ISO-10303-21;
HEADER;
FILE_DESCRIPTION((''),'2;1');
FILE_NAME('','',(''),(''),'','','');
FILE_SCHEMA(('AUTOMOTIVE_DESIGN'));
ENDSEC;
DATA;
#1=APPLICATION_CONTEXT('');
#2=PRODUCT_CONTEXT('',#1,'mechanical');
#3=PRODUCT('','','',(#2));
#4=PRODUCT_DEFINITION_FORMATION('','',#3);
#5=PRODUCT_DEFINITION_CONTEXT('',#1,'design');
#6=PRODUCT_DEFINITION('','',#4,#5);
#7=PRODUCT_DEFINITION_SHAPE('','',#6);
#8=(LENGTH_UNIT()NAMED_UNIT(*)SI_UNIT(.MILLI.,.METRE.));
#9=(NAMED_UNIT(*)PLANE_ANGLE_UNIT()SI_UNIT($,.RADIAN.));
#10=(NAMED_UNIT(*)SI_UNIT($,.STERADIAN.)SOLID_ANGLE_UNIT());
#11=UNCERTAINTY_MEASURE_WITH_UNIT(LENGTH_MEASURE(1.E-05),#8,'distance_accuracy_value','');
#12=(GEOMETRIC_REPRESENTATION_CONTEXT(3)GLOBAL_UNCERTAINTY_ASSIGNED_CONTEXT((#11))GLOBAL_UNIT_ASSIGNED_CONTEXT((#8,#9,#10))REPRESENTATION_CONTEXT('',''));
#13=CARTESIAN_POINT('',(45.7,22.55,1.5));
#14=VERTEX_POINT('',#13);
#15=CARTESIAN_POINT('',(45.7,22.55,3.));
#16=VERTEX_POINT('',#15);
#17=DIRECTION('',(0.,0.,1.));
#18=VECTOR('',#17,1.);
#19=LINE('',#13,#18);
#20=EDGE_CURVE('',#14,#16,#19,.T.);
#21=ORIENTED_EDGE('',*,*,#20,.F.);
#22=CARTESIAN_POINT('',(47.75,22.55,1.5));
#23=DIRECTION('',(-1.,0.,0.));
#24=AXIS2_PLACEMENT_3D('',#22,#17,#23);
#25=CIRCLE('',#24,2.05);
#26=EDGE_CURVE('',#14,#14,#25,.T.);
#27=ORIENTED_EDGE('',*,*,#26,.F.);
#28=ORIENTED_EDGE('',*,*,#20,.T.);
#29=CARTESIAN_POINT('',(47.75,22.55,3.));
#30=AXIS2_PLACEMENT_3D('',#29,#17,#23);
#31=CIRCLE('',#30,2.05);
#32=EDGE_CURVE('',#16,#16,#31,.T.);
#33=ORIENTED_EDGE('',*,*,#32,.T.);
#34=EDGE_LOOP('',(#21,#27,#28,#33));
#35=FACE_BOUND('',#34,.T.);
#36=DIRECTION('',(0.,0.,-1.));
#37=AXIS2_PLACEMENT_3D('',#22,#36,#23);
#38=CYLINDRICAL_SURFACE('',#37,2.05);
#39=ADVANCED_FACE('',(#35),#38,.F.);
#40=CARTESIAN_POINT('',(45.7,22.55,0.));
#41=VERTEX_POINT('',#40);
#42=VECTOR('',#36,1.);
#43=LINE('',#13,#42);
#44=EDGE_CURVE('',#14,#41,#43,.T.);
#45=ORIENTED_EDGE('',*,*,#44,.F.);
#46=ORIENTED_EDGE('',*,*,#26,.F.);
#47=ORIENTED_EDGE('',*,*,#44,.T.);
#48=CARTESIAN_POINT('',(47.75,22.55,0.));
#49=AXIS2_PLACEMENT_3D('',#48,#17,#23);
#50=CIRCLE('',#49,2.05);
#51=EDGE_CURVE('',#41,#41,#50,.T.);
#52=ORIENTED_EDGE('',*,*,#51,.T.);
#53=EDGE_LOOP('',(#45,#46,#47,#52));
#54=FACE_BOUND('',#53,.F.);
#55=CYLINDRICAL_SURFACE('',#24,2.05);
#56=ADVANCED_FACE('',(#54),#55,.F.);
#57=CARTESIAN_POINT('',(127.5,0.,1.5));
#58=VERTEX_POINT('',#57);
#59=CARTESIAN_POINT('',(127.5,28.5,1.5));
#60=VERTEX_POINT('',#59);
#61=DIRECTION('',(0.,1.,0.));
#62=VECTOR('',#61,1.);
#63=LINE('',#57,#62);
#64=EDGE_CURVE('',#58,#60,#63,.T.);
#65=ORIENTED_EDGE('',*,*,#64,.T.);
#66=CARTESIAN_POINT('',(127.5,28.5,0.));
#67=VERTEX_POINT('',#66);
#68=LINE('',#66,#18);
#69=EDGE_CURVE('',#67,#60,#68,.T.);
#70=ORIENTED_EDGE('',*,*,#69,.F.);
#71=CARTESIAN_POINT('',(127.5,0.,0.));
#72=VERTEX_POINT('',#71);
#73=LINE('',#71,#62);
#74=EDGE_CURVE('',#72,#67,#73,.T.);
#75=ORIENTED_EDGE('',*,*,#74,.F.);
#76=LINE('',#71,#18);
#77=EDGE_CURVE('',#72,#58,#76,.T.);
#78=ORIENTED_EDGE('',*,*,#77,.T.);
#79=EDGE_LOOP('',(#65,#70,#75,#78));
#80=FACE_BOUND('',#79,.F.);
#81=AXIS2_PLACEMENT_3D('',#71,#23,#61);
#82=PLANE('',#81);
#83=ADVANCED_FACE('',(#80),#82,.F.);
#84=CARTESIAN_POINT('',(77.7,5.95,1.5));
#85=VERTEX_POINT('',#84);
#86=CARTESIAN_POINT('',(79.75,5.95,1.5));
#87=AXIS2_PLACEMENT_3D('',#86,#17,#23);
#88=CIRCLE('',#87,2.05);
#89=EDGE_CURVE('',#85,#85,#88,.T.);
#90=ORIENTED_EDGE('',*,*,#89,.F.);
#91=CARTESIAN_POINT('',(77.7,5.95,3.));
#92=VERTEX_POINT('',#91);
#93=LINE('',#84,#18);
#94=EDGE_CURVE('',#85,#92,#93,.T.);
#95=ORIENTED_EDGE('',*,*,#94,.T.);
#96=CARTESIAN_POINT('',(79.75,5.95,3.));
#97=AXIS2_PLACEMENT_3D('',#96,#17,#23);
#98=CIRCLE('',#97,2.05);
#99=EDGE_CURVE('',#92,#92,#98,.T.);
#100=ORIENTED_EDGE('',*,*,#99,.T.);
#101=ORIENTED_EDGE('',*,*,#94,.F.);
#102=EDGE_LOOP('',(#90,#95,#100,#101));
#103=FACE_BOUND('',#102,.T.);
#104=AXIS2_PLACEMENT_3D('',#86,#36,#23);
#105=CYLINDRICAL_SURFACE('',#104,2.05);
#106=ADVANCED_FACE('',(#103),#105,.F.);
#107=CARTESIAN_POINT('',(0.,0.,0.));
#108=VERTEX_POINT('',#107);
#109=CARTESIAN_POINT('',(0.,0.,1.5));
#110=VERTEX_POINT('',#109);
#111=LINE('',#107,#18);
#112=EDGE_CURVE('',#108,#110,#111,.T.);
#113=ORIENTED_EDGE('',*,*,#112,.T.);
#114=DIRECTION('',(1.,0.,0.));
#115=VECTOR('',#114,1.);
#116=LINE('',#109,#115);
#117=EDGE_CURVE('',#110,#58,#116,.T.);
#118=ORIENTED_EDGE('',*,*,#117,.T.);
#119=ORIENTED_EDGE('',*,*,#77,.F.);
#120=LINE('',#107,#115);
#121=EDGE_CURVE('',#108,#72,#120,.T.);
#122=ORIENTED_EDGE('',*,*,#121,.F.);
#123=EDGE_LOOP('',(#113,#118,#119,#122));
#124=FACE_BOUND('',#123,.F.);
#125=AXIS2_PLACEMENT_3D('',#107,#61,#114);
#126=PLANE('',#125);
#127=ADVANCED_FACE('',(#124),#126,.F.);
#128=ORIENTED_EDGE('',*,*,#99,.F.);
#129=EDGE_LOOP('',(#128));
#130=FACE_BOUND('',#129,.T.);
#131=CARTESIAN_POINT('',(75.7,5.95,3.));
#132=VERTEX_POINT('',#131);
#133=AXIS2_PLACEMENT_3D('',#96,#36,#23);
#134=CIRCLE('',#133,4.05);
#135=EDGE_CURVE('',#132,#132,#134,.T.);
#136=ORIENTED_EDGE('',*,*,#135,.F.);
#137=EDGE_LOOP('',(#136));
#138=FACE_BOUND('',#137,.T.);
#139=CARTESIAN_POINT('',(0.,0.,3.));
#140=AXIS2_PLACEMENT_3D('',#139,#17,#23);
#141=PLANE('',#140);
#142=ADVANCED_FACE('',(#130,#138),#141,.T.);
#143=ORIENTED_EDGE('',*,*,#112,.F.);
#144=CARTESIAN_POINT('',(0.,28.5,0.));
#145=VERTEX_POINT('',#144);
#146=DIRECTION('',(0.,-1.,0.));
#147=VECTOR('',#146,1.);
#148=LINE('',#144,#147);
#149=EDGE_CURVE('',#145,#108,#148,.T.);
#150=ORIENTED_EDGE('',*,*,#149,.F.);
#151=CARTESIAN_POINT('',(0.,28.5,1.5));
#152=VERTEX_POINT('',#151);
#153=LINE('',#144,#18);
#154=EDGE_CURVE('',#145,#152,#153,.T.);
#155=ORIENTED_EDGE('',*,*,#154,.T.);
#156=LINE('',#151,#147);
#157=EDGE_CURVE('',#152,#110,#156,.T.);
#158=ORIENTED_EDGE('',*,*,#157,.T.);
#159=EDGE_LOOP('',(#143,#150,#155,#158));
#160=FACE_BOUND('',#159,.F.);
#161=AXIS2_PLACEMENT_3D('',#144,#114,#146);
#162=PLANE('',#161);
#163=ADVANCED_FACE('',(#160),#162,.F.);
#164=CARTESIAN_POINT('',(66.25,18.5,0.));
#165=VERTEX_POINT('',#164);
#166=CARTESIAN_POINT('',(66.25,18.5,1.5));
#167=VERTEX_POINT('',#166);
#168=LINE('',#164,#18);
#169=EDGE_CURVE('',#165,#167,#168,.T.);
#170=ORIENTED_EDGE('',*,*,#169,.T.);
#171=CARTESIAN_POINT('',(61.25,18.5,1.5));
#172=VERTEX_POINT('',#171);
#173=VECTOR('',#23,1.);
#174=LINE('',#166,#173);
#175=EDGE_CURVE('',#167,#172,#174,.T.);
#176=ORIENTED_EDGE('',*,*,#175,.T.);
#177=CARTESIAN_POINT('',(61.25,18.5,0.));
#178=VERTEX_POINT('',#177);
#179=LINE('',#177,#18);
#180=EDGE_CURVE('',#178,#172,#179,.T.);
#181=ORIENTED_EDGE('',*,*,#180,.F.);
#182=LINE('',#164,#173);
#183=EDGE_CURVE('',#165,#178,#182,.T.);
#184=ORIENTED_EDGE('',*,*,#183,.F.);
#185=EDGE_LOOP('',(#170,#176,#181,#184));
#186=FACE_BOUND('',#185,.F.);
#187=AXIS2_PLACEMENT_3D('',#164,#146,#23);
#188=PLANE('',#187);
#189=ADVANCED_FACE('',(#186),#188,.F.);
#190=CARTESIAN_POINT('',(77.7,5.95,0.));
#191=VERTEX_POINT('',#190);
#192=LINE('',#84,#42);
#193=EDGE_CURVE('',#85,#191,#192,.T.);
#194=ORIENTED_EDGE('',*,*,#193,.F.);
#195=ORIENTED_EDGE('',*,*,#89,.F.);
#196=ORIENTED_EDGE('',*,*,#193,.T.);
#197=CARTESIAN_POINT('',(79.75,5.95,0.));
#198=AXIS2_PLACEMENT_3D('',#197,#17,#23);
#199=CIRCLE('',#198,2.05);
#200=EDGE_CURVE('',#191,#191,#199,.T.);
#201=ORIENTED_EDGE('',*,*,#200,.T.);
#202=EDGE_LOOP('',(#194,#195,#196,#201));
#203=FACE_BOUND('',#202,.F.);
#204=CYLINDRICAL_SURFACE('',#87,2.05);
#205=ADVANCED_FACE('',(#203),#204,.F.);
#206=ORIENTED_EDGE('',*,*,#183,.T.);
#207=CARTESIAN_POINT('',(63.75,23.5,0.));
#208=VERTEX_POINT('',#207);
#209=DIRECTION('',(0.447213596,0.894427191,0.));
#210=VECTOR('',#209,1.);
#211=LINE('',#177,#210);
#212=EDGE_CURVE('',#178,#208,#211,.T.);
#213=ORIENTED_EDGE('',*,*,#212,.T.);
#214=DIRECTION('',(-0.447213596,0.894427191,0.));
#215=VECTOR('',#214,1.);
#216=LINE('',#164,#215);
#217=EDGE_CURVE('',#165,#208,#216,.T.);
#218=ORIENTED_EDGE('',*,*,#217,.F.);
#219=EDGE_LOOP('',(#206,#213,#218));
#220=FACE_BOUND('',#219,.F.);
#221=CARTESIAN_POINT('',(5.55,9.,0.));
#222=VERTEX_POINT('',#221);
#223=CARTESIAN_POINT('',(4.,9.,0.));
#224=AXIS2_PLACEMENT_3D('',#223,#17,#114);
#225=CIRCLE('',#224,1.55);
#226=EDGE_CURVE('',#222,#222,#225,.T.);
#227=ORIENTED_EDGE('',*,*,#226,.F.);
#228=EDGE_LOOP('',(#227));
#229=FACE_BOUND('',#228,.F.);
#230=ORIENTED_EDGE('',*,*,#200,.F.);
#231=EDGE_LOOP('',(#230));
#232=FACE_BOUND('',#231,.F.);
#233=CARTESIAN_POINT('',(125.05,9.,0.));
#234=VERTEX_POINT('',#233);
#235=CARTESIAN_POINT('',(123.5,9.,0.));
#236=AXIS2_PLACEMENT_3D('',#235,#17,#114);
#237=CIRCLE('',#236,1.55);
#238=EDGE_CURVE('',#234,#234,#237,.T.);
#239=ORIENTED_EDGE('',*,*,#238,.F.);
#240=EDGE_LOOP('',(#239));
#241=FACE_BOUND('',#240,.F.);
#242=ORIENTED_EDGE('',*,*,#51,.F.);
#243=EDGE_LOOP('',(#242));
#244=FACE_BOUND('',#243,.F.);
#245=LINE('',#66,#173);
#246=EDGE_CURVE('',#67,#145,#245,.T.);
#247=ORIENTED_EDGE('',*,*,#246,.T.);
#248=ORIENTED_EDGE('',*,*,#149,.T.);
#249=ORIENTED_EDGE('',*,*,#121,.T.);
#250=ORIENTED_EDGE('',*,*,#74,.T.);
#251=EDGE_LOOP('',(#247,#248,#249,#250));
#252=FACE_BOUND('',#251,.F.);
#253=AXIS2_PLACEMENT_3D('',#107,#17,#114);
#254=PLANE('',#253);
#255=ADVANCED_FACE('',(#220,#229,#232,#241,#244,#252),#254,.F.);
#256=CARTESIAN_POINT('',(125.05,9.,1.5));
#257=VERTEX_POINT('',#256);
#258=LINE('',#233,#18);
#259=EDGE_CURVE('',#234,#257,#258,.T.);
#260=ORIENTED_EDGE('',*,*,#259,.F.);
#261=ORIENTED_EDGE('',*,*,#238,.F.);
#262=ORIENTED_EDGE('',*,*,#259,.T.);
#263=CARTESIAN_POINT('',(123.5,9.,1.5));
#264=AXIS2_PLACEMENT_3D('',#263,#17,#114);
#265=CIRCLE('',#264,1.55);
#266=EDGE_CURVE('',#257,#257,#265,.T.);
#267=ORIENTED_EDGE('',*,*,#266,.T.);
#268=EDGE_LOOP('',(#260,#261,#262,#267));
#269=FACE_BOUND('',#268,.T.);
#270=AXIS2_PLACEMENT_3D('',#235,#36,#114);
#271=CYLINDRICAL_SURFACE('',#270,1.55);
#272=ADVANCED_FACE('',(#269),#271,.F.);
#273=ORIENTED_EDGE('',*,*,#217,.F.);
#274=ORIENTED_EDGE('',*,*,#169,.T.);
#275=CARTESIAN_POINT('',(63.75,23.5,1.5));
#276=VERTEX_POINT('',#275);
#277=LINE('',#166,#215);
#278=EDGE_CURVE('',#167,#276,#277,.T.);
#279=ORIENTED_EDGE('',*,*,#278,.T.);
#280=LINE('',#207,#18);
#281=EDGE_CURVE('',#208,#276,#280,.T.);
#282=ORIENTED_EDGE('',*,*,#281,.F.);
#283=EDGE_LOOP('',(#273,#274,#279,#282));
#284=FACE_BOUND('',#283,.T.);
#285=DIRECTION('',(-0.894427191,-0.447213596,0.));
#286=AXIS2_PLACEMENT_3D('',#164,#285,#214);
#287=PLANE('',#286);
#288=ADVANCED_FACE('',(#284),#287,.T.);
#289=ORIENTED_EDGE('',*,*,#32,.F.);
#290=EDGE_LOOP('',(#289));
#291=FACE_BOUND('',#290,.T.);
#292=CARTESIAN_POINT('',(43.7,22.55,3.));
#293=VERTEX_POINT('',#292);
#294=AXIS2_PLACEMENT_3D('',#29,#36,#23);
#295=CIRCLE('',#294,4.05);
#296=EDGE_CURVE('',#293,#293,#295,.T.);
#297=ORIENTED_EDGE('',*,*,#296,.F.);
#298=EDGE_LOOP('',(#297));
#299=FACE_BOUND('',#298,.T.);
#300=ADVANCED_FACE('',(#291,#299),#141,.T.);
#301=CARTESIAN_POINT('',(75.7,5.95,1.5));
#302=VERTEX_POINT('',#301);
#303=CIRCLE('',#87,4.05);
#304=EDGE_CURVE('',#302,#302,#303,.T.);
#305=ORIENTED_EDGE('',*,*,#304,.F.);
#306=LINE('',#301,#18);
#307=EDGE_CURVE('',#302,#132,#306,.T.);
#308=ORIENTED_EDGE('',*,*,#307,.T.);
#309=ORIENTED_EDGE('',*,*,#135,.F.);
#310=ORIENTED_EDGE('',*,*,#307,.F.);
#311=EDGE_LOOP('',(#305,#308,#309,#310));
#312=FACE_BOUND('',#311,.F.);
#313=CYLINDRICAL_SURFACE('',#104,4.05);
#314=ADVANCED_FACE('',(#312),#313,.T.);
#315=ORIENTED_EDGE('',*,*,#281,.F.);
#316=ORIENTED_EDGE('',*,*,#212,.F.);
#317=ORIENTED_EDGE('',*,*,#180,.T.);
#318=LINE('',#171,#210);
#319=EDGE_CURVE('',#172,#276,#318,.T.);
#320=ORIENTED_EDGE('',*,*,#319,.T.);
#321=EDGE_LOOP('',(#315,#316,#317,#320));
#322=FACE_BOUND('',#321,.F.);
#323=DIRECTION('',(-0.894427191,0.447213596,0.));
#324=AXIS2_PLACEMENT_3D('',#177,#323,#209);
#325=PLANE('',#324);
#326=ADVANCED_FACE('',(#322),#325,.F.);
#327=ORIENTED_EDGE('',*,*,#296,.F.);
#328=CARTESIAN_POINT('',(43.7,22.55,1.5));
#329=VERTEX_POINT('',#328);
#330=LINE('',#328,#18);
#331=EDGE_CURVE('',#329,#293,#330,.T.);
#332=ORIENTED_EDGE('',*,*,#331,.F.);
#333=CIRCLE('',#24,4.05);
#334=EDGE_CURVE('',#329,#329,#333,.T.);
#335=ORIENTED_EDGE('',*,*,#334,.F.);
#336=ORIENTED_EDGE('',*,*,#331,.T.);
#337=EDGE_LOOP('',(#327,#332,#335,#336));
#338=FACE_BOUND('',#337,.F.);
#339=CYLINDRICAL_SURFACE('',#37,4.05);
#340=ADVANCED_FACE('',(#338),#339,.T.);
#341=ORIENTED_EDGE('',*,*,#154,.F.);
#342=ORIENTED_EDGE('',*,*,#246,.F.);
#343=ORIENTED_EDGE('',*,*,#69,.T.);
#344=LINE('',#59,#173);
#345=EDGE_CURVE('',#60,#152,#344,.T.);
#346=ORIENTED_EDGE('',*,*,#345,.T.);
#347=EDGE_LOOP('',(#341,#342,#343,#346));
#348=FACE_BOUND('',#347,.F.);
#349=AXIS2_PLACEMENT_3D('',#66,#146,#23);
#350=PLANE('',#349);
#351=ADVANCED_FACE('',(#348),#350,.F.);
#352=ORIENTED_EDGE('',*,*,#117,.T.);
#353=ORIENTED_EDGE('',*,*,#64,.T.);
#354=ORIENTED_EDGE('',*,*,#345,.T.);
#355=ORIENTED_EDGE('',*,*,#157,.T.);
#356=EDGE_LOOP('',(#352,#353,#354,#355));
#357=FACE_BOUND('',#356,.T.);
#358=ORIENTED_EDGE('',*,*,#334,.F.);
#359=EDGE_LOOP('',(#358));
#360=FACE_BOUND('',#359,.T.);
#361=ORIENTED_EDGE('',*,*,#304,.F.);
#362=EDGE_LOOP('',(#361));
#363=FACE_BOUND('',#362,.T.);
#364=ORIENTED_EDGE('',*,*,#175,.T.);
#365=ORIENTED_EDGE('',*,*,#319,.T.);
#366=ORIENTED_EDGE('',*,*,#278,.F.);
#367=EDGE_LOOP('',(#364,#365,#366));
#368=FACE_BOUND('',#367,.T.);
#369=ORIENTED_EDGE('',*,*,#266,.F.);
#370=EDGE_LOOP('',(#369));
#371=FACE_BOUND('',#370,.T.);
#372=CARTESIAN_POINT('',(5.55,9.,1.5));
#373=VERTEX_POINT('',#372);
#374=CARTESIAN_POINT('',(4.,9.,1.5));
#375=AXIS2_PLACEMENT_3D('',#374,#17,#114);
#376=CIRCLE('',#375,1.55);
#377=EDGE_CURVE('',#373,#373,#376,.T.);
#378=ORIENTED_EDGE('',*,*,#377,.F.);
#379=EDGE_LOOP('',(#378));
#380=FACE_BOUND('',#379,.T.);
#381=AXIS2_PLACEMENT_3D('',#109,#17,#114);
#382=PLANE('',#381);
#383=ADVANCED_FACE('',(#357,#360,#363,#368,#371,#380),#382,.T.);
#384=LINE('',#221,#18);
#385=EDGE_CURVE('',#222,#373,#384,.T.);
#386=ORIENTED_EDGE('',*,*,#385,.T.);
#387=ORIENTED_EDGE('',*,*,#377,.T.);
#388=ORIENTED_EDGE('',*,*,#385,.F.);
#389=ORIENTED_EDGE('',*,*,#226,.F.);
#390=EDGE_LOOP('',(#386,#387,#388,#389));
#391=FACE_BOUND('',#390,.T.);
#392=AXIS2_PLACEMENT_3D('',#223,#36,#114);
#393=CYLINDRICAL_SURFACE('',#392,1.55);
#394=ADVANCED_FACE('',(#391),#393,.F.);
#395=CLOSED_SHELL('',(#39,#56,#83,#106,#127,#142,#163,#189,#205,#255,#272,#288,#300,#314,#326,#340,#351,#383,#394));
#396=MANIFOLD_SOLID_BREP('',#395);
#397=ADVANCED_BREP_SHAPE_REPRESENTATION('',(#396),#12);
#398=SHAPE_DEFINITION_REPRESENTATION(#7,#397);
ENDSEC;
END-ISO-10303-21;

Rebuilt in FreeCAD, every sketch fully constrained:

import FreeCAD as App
import Part
import Sketcher

V = App.Vector
Q = App.Units.Quantity


def add_polygon(sketch, points):
    """Adds a closed chain of lines whose ends are joined by coincident constraints."""
    first, n = sketch.GeometryCount, len(points)
    for a, b in zip(points, points[1:] + points[:1]):
        sketch.addGeometry(Part.LineSegment(App.Vector(*a, 0), App.Vector(*b, 0)), False)
    for i in range(n):
        sketch.addConstraint(Sketcher.Constraint("Coincident", first + i, 2, first + (i + 1) % n, 1))

doc = App.newDocument("Part")
body = doc.addObject("PartDesign::Body", "Body")

sketch1 = doc.addObject("Sketcher::SketchObject", "Sketch")
body.addObject(sketch1)
sketch1.AttachmentSupport = (doc.XY_Plane, [""])
sketch1.MapMode = "FlatFace"
add_polygon(sketch1, [(0, 28.5), (0, 0), (127.5, 0), (127.5, 28.5)])
sketch1.addGeometry(Part.Circle(V(4, 9, 0), V(0, 0, 1), 1.55), False)
sketch1.addGeometry(Part.Circle(V(123.5, 9, 0), V(0, 0, 1), 1.55), False)
add_polygon(sketch1, [(66.25, 18.5), (61.25, 18.5), (63.75, 23.5)])
sketch1.addConstraint([
    Sketcher.Constraint("Vertical", 0),
    Sketcher.Constraint("Horizontal", 1),
    Sketcher.Constraint("Vertical", 2),
    Sketcher.Constraint("Horizontal", 3),
    Sketcher.Constraint("Horizontal", 6),
    Sketcher.Constraint("Coincident", 0, 2, -1, 1),
    Sketcher.Constraint("Equal", 4, 5),
    Sketcher.Constraint("Horizontal", 4, 3, 5, 3),
    Sketcher.Constraint("Equal", 7, 8),
    Sketcher.Constraint("Diameter", 4, Q("3.1 mm")),
    Sketcher.Constraint("DistanceX", 6, 2, 6, 1, Q("5 mm")),
    Sketcher.Constraint("DistanceX", 1, 1, 1, 2, Q("127.5 mm")),
    Sketcher.Constraint("DistanceY", 0, 2, 0, 1, Q("28.5 mm")),
    Sketcher.Constraint("DistanceX", -1, 1, 4, 3, Q("4 mm")),
    Sketcher.Constraint("DistanceY", -1, 1, 4, 3, Q("9 mm")),
    Sketcher.Constraint("DistanceX", 5, 3, 1, 2, Q("4 mm")),
    Sketcher.Constraint("DistanceY", 6, 2, 7, 2, Q("5 mm")),
    Sketcher.Constraint("DistanceY", 7, 2, 2, 2, Q("5 mm")),
    Sketcher.Constraint("DistanceX", -1, 1, 6, 2, Q("61.25 mm")),
])
pad1 = doc.addObject("PartDesign::Pad", "Pad")
body.addObject(pad1)
pad1.Profile = sketch1
pad1.Length = 1.5

sketch2 = doc.addObject("Sketcher::SketchObject", "Sketch001")
body.addObject(sketch2)
sketch2.AttachmentSupport = (doc.XY_Plane, [""])
sketch2.MapMode = "FlatFace"
sketch2.AttachmentOffset = App.Placement(V(0, 0, 1.5), App.Rotation())
sketch2.addGeometry([
    Part.Circle(V(79.75, 5.95, 0), V(0, 0, 1), 4.05),
    Part.Circle(V(79.75, 5.95, 0), V(0, 0, 1), 2.05),
    Part.Circle(V(47.75, 22.55, 0), V(0, 0, 1), 4.05),
    Part.Circle(V(47.75, 22.55, 0), V(0, 0, 1), 2.05),
], False)
sketch2.addConstraint([
    Sketcher.Constraint("Coincident", 1, 3, 0, 3),
    Sketcher.Constraint("Coincident", 3, 3, 2, 3),
    Sketcher.Constraint("Equal", 0, 2),
    Sketcher.Constraint("Equal", 1, 3),
    Sketcher.Constraint("Diameter", 0, Q("8.1 mm")),
    Sketcher.Constraint("Diameter", 1, Q("4.1 mm")),
    Sketcher.Constraint("DistanceX", 2, 3, 0, 3, Q("32 mm")),
    Sketcher.Constraint("DistanceY", 0, 3, 2, 3, Q("16.6 mm")),
    Sketcher.Constraint("DistanceX", -1, 1, 0, 3, Q("79.75 mm")),
    Sketcher.Constraint("DistanceY", -1, 1, 0, 3, Q("5.95 mm")),
])
pad2 = doc.addObject("PartDesign::Pad", "Pad001")
body.addObject(pad2)
pad2.Profile = sketch2
pad2.Length = 1.5

sketch3 = doc.addObject("Sketcher::SketchObject", "Sketch002")
body.addObject(sketch3)
sketch3.AttachmentSupport = (doc.XY_Plane, [""])
sketch3.MapMode = "FlatFace"
sketch3.AttachmentOffset = App.Placement(V(0, 0, 1.5), App.Rotation())
sketch3.addGeometry([
    Part.Circle(V(47.75, 22.55, 0), V(0, 0, 1), 2.05),
    Part.Circle(V(79.75, 5.95, 0), V(0, 0, 1), 2.05),
], False)
sketch3.addConstraint([
    Sketcher.Constraint("Equal", 0, 1),
    Sketcher.Constraint("Diameter", 0, Q("4.1 mm")),
    Sketcher.Constraint("DistanceX", 0, 3, 1, 3, Q("32 mm")),
    Sketcher.Constraint("DistanceY", 1, 3, 0, 3, Q("16.6 mm")),
    Sketcher.Constraint("DistanceX", -1, 1, 0, 3, Q("47.75 mm")),
    Sketcher.Constraint("DistanceY", -1, 1, 0, 3, Q("22.55 mm")),
])
pocket1 = doc.addObject("PartDesign::Pocket", "Pocket")
body.addObject(pocket1)
pocket1.Profile = sketch3
pocket1.Length = 1.5

doc.recompute()
